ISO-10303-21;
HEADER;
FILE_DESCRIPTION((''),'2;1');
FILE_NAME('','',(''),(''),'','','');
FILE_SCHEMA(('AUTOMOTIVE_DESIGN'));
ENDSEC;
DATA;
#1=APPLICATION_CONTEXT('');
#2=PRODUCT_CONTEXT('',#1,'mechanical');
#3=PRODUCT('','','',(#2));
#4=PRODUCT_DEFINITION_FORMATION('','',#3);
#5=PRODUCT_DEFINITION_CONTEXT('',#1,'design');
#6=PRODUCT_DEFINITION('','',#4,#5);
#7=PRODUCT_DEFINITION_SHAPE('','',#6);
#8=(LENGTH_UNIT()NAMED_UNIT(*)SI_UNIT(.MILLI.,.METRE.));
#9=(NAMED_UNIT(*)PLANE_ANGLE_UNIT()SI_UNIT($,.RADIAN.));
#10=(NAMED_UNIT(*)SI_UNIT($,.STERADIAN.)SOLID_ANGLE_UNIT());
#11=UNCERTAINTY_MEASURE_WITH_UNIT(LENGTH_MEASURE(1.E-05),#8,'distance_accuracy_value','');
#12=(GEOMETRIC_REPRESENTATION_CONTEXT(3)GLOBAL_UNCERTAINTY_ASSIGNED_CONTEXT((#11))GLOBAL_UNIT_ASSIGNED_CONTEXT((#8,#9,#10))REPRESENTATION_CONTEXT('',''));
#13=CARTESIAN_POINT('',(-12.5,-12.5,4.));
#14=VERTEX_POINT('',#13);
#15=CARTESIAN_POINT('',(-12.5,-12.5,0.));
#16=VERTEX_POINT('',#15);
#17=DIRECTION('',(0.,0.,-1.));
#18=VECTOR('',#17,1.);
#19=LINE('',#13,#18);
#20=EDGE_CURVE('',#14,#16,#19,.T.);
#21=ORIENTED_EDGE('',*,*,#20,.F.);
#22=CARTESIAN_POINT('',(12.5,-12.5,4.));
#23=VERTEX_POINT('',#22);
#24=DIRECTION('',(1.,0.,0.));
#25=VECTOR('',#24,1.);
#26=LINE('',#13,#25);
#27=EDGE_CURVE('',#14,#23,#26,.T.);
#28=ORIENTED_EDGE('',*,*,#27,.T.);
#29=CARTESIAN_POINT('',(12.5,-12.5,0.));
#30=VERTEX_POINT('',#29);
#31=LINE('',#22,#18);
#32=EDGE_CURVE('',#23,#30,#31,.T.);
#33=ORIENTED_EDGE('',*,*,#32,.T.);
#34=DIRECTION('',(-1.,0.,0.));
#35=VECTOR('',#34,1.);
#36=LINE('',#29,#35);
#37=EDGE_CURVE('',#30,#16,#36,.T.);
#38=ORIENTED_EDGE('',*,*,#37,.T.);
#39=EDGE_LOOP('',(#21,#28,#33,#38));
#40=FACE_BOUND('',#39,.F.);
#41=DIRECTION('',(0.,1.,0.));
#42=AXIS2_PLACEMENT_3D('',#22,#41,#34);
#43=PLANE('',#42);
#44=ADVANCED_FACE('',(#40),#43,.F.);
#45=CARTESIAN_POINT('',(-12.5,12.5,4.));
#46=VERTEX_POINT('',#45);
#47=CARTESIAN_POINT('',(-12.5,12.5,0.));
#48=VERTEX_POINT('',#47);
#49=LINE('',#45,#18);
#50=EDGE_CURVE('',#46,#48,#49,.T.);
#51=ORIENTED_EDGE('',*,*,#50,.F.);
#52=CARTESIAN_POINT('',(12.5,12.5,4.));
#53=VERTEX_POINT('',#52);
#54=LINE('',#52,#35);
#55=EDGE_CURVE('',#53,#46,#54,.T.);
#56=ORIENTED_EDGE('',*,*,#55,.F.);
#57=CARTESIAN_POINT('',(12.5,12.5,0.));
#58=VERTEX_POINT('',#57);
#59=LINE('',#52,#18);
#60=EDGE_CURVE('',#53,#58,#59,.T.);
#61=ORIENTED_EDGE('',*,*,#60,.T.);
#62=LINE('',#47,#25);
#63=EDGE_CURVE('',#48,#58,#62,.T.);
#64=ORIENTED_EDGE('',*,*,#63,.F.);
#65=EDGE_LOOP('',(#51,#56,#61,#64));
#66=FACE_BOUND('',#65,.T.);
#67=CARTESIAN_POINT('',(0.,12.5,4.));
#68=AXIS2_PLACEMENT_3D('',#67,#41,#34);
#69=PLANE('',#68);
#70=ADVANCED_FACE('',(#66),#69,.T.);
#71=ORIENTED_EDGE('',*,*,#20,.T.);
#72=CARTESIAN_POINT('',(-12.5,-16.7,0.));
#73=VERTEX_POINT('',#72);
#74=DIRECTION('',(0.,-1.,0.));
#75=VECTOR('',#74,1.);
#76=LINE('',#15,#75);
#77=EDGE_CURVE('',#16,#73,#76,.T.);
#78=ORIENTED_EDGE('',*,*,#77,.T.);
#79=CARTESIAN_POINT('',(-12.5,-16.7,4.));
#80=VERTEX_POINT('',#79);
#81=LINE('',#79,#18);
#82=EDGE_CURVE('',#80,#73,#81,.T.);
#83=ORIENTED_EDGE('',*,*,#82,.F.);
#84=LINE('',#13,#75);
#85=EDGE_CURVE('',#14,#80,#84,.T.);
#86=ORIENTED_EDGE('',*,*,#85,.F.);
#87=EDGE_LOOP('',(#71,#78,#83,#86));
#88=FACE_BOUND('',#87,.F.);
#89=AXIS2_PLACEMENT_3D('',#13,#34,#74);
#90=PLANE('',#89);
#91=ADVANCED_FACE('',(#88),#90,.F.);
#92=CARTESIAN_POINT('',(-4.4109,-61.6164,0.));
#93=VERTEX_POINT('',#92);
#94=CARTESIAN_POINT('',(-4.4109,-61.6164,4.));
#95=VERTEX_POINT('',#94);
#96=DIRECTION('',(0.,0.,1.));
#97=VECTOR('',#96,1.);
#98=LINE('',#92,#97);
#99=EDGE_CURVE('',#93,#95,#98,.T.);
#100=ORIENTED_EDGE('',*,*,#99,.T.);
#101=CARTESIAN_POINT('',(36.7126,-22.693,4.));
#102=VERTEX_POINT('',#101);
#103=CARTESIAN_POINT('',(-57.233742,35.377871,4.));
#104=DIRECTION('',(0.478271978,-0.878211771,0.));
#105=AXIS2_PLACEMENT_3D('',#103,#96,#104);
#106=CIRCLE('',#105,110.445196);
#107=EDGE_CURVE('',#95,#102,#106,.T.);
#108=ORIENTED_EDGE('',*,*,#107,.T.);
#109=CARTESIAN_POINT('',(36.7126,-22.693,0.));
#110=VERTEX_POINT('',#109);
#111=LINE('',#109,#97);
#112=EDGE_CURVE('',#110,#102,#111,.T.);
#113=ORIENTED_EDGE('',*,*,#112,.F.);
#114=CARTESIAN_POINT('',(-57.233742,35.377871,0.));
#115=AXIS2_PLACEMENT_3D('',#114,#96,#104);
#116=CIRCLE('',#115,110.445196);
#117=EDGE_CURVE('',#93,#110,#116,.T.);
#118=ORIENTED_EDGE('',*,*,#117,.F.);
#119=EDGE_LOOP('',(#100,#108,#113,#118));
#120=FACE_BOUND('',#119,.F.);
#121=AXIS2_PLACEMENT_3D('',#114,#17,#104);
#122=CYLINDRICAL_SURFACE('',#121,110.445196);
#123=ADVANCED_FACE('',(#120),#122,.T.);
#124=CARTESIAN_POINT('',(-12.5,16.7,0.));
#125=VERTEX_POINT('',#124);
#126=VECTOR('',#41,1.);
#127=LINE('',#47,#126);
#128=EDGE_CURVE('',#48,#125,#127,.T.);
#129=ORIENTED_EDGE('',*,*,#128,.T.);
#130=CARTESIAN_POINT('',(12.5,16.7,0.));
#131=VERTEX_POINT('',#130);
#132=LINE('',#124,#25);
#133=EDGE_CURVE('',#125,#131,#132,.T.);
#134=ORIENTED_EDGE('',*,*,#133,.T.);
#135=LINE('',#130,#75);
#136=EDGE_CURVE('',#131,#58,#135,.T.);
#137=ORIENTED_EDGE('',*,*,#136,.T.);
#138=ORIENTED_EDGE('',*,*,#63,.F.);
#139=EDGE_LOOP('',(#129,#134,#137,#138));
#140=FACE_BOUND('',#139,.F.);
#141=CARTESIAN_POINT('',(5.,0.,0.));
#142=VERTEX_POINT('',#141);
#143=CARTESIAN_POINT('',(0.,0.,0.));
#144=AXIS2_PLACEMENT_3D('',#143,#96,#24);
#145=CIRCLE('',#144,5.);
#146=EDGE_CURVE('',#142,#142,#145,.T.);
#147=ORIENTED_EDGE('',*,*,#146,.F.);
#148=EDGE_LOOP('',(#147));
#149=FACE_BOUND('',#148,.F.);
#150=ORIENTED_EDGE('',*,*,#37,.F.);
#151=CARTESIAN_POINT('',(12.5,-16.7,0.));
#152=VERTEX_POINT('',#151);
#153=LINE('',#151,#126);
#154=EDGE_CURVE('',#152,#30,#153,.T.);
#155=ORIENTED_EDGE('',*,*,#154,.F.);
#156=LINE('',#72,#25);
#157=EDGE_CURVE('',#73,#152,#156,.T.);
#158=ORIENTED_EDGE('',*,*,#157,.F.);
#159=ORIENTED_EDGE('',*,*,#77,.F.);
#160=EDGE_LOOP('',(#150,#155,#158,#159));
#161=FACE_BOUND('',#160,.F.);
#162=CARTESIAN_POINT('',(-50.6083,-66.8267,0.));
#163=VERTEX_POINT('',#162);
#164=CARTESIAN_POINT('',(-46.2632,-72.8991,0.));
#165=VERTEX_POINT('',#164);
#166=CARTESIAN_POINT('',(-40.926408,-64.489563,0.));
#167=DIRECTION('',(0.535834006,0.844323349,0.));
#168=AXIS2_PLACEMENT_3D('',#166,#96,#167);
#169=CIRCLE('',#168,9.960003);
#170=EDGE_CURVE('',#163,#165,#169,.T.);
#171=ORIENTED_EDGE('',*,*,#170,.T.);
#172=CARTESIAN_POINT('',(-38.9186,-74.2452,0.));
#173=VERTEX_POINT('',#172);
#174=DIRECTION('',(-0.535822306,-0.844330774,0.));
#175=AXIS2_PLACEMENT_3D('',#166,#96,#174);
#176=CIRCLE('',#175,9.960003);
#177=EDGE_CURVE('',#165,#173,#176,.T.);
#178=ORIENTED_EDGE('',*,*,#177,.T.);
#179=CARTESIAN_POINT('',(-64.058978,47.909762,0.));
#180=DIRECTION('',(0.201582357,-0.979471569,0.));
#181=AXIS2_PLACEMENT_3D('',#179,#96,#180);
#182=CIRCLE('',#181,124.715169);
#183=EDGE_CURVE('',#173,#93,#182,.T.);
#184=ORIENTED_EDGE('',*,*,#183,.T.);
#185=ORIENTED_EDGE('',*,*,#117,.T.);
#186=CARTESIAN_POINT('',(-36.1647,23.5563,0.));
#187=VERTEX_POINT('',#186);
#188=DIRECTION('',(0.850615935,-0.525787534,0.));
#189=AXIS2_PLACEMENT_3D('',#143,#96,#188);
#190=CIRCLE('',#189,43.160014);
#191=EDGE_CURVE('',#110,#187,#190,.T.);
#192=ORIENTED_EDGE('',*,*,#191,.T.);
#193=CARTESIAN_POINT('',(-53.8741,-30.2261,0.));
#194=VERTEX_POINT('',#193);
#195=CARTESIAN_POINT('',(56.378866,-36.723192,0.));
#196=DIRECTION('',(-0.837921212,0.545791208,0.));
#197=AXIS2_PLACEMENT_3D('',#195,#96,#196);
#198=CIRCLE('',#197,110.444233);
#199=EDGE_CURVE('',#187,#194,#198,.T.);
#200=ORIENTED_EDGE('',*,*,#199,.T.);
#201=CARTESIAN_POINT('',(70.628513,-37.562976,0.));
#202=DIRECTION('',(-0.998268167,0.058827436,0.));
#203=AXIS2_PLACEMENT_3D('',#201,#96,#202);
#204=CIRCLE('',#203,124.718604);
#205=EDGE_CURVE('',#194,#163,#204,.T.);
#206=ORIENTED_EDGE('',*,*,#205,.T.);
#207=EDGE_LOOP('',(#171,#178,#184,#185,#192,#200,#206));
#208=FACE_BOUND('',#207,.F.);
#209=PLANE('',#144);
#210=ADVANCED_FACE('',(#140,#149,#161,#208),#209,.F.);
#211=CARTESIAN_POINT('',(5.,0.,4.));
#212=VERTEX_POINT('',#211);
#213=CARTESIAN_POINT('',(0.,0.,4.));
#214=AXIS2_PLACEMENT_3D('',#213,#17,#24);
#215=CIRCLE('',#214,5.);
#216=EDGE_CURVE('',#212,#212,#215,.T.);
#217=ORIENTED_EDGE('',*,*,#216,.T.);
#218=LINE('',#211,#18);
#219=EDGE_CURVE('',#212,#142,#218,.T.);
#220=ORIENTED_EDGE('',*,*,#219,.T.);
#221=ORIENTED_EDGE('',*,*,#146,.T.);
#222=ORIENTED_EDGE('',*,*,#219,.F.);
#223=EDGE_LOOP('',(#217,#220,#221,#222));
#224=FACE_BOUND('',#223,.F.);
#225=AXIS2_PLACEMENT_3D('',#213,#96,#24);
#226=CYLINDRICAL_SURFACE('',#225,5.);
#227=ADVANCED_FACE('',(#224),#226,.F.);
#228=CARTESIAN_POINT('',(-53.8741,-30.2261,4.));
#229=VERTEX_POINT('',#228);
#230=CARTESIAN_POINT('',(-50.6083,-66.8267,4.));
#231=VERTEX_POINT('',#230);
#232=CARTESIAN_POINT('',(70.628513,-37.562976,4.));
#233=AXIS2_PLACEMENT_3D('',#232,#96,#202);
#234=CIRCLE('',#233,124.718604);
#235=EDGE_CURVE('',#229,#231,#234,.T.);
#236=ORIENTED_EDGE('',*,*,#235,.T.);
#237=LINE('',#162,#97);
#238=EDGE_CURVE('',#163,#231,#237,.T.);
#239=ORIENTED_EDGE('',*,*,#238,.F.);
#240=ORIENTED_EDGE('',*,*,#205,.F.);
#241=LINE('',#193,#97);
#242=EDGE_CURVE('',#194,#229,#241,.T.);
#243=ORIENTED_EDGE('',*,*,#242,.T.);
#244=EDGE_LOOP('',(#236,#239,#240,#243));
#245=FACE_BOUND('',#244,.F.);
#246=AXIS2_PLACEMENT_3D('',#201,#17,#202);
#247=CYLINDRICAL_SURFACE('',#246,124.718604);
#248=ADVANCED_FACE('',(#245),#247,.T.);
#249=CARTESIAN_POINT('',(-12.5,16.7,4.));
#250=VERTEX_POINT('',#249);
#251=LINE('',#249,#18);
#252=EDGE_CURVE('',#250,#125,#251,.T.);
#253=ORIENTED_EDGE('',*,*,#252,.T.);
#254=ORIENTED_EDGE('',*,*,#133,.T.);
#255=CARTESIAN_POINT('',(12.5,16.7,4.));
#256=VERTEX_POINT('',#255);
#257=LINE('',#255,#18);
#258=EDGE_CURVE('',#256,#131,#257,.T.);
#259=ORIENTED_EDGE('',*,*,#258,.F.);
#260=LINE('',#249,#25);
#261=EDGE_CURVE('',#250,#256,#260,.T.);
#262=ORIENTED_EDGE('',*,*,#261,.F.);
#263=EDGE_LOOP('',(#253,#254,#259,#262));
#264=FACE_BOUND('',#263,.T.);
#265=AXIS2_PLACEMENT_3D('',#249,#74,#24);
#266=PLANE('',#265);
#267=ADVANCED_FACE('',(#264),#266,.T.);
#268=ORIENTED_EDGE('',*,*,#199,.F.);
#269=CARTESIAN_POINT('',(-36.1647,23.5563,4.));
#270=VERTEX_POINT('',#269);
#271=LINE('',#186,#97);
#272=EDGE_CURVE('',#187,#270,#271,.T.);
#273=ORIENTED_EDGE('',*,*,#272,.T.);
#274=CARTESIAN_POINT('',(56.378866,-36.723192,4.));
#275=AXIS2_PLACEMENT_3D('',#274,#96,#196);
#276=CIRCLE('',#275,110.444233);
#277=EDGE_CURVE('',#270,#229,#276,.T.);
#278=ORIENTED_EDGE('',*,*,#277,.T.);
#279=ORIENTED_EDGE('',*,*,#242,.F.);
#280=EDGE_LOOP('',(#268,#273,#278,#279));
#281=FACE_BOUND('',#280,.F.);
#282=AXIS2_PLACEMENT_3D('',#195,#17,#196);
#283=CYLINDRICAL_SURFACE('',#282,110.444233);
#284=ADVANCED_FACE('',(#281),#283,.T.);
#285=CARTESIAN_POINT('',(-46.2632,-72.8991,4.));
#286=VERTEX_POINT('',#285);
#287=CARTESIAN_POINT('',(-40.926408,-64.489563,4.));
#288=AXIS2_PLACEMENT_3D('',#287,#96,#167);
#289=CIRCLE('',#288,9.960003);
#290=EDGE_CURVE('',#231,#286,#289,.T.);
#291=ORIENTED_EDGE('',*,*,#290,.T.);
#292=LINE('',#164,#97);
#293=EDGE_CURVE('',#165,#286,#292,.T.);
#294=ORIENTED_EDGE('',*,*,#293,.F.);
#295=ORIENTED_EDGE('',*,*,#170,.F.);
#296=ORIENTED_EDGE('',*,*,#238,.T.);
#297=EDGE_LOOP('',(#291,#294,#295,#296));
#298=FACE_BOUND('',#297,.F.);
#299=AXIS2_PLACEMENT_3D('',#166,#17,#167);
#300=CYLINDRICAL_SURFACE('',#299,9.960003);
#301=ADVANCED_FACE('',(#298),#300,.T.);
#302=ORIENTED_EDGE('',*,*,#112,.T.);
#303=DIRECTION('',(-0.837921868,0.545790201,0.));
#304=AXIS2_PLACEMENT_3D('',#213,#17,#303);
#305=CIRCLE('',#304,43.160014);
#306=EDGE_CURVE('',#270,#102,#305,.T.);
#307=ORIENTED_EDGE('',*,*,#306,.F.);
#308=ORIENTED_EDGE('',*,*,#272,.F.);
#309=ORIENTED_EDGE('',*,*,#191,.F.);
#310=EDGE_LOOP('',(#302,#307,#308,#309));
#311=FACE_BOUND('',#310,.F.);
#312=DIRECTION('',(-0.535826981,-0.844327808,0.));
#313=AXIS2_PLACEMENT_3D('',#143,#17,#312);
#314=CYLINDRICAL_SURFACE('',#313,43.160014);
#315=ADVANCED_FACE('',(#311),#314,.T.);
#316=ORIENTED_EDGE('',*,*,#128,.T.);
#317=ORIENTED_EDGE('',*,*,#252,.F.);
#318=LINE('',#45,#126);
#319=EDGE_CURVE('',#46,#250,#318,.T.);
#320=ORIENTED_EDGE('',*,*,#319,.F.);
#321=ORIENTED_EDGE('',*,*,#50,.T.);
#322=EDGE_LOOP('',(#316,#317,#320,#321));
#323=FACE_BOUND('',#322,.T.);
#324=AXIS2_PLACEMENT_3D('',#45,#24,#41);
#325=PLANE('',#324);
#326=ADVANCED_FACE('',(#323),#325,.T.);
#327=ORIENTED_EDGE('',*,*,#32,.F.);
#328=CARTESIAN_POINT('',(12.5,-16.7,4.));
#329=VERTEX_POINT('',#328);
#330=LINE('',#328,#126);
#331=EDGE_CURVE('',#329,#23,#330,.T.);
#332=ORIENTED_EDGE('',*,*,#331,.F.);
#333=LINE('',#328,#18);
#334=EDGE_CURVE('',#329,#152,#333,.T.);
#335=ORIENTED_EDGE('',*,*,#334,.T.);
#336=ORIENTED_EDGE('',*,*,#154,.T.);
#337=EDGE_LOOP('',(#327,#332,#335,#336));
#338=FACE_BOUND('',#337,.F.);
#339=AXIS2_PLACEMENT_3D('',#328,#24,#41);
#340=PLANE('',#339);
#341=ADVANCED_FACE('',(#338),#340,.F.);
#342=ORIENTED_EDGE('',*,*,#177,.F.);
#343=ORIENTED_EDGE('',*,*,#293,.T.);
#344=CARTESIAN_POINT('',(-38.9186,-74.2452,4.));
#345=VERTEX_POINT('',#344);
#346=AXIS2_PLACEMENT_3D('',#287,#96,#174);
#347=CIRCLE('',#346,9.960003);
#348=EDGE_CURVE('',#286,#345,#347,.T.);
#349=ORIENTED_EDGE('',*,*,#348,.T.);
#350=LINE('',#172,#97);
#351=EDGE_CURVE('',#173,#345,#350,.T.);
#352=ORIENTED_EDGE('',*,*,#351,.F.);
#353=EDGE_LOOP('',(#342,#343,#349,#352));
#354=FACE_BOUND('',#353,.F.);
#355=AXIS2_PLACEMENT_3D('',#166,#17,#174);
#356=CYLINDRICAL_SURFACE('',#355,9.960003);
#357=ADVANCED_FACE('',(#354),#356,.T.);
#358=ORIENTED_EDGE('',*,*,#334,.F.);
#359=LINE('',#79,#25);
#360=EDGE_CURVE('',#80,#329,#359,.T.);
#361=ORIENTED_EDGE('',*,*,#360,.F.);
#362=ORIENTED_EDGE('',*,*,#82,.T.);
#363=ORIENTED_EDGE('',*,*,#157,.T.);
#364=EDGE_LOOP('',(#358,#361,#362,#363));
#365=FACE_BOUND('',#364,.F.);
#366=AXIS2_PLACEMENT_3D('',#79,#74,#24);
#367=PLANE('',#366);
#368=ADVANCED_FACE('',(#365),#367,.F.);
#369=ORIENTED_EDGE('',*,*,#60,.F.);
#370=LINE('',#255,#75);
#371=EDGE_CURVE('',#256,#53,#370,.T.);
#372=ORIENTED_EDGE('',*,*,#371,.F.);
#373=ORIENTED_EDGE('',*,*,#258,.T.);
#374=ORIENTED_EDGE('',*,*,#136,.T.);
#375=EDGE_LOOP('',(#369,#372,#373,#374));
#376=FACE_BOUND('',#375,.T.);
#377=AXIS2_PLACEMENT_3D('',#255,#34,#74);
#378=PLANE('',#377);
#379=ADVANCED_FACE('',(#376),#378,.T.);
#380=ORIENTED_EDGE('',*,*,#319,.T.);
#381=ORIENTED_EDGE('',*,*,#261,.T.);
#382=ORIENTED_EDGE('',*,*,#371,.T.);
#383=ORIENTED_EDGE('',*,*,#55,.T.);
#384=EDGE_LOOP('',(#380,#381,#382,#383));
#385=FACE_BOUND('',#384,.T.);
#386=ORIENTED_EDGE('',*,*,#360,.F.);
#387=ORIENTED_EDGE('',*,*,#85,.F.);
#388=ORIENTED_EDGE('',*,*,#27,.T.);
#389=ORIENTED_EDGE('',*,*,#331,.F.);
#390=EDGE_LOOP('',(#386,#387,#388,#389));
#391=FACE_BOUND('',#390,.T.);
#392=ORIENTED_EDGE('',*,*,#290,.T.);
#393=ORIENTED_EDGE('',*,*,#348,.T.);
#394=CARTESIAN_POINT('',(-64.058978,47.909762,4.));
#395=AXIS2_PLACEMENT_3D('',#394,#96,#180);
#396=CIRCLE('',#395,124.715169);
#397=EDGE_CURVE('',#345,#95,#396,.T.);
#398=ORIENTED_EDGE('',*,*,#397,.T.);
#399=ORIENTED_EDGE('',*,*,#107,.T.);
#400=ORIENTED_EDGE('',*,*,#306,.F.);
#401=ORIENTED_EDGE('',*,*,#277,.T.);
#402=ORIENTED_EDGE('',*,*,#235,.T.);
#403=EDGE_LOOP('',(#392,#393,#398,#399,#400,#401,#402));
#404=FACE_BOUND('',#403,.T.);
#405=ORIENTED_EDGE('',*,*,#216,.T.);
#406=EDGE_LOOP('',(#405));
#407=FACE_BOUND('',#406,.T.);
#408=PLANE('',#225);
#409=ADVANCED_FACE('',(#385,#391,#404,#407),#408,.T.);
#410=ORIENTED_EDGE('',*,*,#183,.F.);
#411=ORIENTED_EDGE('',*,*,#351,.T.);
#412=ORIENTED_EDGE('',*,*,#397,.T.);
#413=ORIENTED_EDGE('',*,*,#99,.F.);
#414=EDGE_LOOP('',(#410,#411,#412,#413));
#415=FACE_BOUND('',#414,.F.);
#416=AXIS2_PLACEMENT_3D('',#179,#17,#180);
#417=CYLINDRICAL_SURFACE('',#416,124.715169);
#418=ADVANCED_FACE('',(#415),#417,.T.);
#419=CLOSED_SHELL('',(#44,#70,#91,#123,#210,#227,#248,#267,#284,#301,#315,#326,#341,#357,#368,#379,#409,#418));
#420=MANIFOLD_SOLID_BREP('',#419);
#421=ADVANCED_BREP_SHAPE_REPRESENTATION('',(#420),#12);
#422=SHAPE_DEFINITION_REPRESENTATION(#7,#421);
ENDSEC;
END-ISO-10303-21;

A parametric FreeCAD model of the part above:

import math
import FreeCAD as App
import Part
import Sketcher
from FreeCAD import Vector
Q = App.Units.Quantity

doc = App.newDocument("Part")
params = doc.addObject("Spreadsheet::Sheet", "Params")
for row, (alias, value) in enumerate([
    ("sketch1_radius", "43.16 mm"),
    ("sketch1_radius2", "9.96 mm"),
    ("pad1_length", "4 mm"),
    ("sketch2_diameter", "10 mm"),
    ("sketch2_width", "25 mm"),
    ("sketch2_height", "4.2 mm"),
    ("pocket1_length", "4 mm"),
], start=1):
    params.set(f"A{row}", alias)
    params.set(f"B{row}", "=" + value)
    params.setAlias(f"B{row}", alias)

body = doc.addObject("PartDesign::Body", "Body")

# Sketch on XY plane
sketch1 = body.newObject("Sketcher::SketchObject", "Sketch")
sketch1.AttachmentSupport = (doc.getObject("XY_Plane"), [""])
sketch1.MapMode = "FlatFace"
sketch1.addGeometry([
    Part.ArcOfCircle(Part.Circle(Vector(0, 0, 0), Vector(0, 0, 1), 43.160014), math.radians(-31.721275), math.radians(146.92132)),  # 0
    Part.ArcOfCircle(Part.Circle(Vector(56.3793, -36.7234, 0), Vector(0, 0, 1), 110.444711), math.radians(146.921284), math.radians(176.627425)),  # 1
    Part.ArcOfCircle(Part.Circle(Vector(70.628513, -37.562976, 0), Vector(0, 0, 1), 124.718604), math.radians(176.627489), math.radians(193.570285)),  # 2
    Part.ArcOfCircle(Part.Circle(Vector(-40.9264, -64.4896, 0), Vector(0, 0, 1), 9.96003), math.radians(-166.429064), math.radians(-122.39985)),  # 3
    Part.ArcOfCircle(Part.Circle(Vector(-40.9264, -64.4896, 0), Vector(0, 0, 1), 9.96003), math.radians(-122.39985), math.radians(-78.370343)),  # 4
    Part.ArcOfCircle(Part.Circle(Vector(-64.058978, 47.909762, 0), Vector(0, 0, 1), 124.715169), math.radians(-78.370494), math.radians(-61.427236)),  # 5
    Part.ArcOfCircle(Part.Circle(Vector(-57.2334, 35.3774, 0), Vector(0, 0, 1), 110.444618), math.radians(-61.427436), math.radians(-31.72126)),  # 6
], False)
sketch1.addConstraint([
    Sketcher.Constraint("Coincident", 0, 2, 1, 1),
    Sketcher.Constraint("Coincident", 1, 2, 2, 1),
    Sketcher.Constraint("Coincident", 2, 2, 3, 1),
    Sketcher.Constraint("Coincident", 3, 2, 4, 1),
    Sketcher.Constraint("Coincident", 4, 2, 5, 1),
    Sketcher.Constraint("Coincident", 5, 2, 6, 1),
    Sketcher.Constraint("Coincident", 6, 2, 0, 1),
    Sketcher.Constraint("Coincident", 0, 3, -1, 1),
    Sketcher.Constraint("Coincident", 4, 3, 3, 3),
    Sketcher.Constraint("Radius", 0, Q("43.16 mm")),
    Sketcher.Constraint("Radius", 3, Q("9.96 mm")),
    Sketcher.Constraint("Radius", 1, Q("110.4447 mm")),
    Sketcher.Constraint("Radius", 2, Q("124.7186 mm")),
    Sketcher.Constraint("Radius", 5, Q("124.7152 mm")),
    Sketcher.Constraint("Radius", 6, Q("110.4446 mm")),
    Sketcher.Constraint("DistanceY", 2, 3, 6, 2, Q("14.87 mm")),
    Sketcher.Constraint("DistanceY", 2, 3, -1, 1, Q("37.563 mm")),
    Sketcher.Constraint("DistanceX", 5, 3, -1, 1, Q("64.059 mm")),
    Sketcher.Constraint("DistanceY", 1, 2, -1, 1, Q("30.226 mm")),
    Sketcher.Constraint("DistanceX", 5, 2, -1, 1, Q("4.411 mm")),
    Sketcher.Constraint("DistanceX", 3, 3, 2, 3, Q("111.555 mm")),
    Sketcher.Constraint("DistanceX", 6, 3, 3, 3, Q("16.307 mm")),
    Sketcher.Constraint("DistanceY", 0, 2, 6, 3, Q("11.821 mm")),
    Sketcher.Constraint("DistanceX", 2, 2, 3, 3, Q("9.682 mm")),
    Sketcher.Constraint("DistanceX", 2, 2, 3, 2, Q("4.345 mm")),
    Sketcher.Constraint("DistanceY", 4, 2, 3, 2, Q("1.346 mm")),
])
sketch1.setExpression("Constraints[9]", "Params.sketch1_radius")
sketch1.setExpression("Constraints[10]", "Params.sketch1_radius2")
pad1 = body.newObject("PartDesign::Pad", "Pad")
pad1.Profile = sketch1
pad1.setExpression("Length", "Params.pad1_length")

# Sketch on XY plane
sketch2 = body.newObject("Sketcher::SketchObject", "Sketch001")
sketch2.AttachmentSupport = (doc.getObject("XY_Plane"), [""])
sketch2.MapMode = "FlatFace"
sketch2.AttachmentOffset = App.Placement(Vector(0, 0, 4), App.Rotation())
sketch2.addGeometry([
    Part.Circle(Vector(0, 0, 0), Vector(0, 0, 1), 5),  # 0
    Part.LineSegment(Vector(-12.5, 12.5, 0), Vector(12.5, 12.5, 0)),  # 1
    Part.LineSegment(Vector(12.5, 12.5, 0), Vector(12.5, 16.7, 0)),  # 2
    Part.LineSegment(Vector(12.5, 16.7, 0), Vector(-12.5, 16.7, 0)),  # 3
    Part.LineSegment(Vector(-12.5, 16.7, 0), Vector(-12.5, 12.5, 0)),  # 4
    Part.LineSegment(Vector(12.5, -12.5, 0), Vector(-12.5, -12.5, 0)),  # 5
    Part.LineSegment(Vector(-12.5, -12.5, 0), Vector(-12.5, -16.7, 0)),  # 6
    Part.LineSegment(Vector(-12.5, -16.7, 0), Vector(12.5, -16.7, 0)),  # 7
    Part.LineSegment(Vector(12.5, -16.7, 0), Vector(12.5, -12.5, 0)),  # 8
], False)
sketch2.addConstraint([
    Sketcher.Constraint("Coincident", 1, 2, 2, 1),
    Sketcher.Constraint("Coincident", 2, 2, 3, 1),
    Sketcher.Constraint("Coincident", 3, 2, 4, 1),
    Sketcher.Constraint("Coincident", 4, 2, 1, 1),
    Sketcher.Constraint("Coincident", 5, 2, 6, 1),
    Sketcher.Constraint("Coincident", 6, 2, 7, 1),
    Sketcher.Constraint("Coincident", 7, 2, 8, 1),
    Sketcher.Constraint("Coincident", 8, 2, 5, 1),
    Sketcher.Constraint("Horizontal", 1),
    Sketcher.Constraint("Vertical", 2),
    Sketcher.Constraint("Horizontal", 3),
    Sketcher.Constraint("Vertical", 4),
    Sketcher.Constraint("Horizontal", 5),
    Sketcher.Constraint("Vertical", 6),
    Sketcher.Constraint("Horizontal", 7),
    Sketcher.Constraint("Vertical", 8),
    Sketcher.Constraint("Coincident", 0, 3, -1, 1),
    Sketcher.Constraint("Symmetric", 1, 2, 5, 2, -1, 1),
    Sketcher.Constraint("Symmetric", 3, 2, 7, 2, -1, 1),
    Sketcher.Constraint("Vertical", 4, 2, 5, 2),
    Sketcher.Constraint("Diameter", 0, Q("10 mm")),
    Sketcher.Constraint("DistanceX", 1, 1, 1, 2, Q("25 mm")),
    Sketcher.Constraint("DistanceY", 2, 1, 2, 2, Q("4.2 mm")),
    Sketcher.Constraint("DistanceY", 5, 2, 4, 2, Q("25 mm")),
])
sketch2.setExpression("Constraints[20]", "Params.sketch2_diameter")
sketch2.setExpression("Constraints[21]", "Params.sketch2_width")
sketch2.setExpression("Constraints[22]", "Params.sketch2_height")
pocket1 = body.newObject("PartDesign::Pocket", "Pocket")
pocket1.Profile = sketch2
pocket1.setExpression("Length", "Params.pocket1_length")

doc.recompute()
